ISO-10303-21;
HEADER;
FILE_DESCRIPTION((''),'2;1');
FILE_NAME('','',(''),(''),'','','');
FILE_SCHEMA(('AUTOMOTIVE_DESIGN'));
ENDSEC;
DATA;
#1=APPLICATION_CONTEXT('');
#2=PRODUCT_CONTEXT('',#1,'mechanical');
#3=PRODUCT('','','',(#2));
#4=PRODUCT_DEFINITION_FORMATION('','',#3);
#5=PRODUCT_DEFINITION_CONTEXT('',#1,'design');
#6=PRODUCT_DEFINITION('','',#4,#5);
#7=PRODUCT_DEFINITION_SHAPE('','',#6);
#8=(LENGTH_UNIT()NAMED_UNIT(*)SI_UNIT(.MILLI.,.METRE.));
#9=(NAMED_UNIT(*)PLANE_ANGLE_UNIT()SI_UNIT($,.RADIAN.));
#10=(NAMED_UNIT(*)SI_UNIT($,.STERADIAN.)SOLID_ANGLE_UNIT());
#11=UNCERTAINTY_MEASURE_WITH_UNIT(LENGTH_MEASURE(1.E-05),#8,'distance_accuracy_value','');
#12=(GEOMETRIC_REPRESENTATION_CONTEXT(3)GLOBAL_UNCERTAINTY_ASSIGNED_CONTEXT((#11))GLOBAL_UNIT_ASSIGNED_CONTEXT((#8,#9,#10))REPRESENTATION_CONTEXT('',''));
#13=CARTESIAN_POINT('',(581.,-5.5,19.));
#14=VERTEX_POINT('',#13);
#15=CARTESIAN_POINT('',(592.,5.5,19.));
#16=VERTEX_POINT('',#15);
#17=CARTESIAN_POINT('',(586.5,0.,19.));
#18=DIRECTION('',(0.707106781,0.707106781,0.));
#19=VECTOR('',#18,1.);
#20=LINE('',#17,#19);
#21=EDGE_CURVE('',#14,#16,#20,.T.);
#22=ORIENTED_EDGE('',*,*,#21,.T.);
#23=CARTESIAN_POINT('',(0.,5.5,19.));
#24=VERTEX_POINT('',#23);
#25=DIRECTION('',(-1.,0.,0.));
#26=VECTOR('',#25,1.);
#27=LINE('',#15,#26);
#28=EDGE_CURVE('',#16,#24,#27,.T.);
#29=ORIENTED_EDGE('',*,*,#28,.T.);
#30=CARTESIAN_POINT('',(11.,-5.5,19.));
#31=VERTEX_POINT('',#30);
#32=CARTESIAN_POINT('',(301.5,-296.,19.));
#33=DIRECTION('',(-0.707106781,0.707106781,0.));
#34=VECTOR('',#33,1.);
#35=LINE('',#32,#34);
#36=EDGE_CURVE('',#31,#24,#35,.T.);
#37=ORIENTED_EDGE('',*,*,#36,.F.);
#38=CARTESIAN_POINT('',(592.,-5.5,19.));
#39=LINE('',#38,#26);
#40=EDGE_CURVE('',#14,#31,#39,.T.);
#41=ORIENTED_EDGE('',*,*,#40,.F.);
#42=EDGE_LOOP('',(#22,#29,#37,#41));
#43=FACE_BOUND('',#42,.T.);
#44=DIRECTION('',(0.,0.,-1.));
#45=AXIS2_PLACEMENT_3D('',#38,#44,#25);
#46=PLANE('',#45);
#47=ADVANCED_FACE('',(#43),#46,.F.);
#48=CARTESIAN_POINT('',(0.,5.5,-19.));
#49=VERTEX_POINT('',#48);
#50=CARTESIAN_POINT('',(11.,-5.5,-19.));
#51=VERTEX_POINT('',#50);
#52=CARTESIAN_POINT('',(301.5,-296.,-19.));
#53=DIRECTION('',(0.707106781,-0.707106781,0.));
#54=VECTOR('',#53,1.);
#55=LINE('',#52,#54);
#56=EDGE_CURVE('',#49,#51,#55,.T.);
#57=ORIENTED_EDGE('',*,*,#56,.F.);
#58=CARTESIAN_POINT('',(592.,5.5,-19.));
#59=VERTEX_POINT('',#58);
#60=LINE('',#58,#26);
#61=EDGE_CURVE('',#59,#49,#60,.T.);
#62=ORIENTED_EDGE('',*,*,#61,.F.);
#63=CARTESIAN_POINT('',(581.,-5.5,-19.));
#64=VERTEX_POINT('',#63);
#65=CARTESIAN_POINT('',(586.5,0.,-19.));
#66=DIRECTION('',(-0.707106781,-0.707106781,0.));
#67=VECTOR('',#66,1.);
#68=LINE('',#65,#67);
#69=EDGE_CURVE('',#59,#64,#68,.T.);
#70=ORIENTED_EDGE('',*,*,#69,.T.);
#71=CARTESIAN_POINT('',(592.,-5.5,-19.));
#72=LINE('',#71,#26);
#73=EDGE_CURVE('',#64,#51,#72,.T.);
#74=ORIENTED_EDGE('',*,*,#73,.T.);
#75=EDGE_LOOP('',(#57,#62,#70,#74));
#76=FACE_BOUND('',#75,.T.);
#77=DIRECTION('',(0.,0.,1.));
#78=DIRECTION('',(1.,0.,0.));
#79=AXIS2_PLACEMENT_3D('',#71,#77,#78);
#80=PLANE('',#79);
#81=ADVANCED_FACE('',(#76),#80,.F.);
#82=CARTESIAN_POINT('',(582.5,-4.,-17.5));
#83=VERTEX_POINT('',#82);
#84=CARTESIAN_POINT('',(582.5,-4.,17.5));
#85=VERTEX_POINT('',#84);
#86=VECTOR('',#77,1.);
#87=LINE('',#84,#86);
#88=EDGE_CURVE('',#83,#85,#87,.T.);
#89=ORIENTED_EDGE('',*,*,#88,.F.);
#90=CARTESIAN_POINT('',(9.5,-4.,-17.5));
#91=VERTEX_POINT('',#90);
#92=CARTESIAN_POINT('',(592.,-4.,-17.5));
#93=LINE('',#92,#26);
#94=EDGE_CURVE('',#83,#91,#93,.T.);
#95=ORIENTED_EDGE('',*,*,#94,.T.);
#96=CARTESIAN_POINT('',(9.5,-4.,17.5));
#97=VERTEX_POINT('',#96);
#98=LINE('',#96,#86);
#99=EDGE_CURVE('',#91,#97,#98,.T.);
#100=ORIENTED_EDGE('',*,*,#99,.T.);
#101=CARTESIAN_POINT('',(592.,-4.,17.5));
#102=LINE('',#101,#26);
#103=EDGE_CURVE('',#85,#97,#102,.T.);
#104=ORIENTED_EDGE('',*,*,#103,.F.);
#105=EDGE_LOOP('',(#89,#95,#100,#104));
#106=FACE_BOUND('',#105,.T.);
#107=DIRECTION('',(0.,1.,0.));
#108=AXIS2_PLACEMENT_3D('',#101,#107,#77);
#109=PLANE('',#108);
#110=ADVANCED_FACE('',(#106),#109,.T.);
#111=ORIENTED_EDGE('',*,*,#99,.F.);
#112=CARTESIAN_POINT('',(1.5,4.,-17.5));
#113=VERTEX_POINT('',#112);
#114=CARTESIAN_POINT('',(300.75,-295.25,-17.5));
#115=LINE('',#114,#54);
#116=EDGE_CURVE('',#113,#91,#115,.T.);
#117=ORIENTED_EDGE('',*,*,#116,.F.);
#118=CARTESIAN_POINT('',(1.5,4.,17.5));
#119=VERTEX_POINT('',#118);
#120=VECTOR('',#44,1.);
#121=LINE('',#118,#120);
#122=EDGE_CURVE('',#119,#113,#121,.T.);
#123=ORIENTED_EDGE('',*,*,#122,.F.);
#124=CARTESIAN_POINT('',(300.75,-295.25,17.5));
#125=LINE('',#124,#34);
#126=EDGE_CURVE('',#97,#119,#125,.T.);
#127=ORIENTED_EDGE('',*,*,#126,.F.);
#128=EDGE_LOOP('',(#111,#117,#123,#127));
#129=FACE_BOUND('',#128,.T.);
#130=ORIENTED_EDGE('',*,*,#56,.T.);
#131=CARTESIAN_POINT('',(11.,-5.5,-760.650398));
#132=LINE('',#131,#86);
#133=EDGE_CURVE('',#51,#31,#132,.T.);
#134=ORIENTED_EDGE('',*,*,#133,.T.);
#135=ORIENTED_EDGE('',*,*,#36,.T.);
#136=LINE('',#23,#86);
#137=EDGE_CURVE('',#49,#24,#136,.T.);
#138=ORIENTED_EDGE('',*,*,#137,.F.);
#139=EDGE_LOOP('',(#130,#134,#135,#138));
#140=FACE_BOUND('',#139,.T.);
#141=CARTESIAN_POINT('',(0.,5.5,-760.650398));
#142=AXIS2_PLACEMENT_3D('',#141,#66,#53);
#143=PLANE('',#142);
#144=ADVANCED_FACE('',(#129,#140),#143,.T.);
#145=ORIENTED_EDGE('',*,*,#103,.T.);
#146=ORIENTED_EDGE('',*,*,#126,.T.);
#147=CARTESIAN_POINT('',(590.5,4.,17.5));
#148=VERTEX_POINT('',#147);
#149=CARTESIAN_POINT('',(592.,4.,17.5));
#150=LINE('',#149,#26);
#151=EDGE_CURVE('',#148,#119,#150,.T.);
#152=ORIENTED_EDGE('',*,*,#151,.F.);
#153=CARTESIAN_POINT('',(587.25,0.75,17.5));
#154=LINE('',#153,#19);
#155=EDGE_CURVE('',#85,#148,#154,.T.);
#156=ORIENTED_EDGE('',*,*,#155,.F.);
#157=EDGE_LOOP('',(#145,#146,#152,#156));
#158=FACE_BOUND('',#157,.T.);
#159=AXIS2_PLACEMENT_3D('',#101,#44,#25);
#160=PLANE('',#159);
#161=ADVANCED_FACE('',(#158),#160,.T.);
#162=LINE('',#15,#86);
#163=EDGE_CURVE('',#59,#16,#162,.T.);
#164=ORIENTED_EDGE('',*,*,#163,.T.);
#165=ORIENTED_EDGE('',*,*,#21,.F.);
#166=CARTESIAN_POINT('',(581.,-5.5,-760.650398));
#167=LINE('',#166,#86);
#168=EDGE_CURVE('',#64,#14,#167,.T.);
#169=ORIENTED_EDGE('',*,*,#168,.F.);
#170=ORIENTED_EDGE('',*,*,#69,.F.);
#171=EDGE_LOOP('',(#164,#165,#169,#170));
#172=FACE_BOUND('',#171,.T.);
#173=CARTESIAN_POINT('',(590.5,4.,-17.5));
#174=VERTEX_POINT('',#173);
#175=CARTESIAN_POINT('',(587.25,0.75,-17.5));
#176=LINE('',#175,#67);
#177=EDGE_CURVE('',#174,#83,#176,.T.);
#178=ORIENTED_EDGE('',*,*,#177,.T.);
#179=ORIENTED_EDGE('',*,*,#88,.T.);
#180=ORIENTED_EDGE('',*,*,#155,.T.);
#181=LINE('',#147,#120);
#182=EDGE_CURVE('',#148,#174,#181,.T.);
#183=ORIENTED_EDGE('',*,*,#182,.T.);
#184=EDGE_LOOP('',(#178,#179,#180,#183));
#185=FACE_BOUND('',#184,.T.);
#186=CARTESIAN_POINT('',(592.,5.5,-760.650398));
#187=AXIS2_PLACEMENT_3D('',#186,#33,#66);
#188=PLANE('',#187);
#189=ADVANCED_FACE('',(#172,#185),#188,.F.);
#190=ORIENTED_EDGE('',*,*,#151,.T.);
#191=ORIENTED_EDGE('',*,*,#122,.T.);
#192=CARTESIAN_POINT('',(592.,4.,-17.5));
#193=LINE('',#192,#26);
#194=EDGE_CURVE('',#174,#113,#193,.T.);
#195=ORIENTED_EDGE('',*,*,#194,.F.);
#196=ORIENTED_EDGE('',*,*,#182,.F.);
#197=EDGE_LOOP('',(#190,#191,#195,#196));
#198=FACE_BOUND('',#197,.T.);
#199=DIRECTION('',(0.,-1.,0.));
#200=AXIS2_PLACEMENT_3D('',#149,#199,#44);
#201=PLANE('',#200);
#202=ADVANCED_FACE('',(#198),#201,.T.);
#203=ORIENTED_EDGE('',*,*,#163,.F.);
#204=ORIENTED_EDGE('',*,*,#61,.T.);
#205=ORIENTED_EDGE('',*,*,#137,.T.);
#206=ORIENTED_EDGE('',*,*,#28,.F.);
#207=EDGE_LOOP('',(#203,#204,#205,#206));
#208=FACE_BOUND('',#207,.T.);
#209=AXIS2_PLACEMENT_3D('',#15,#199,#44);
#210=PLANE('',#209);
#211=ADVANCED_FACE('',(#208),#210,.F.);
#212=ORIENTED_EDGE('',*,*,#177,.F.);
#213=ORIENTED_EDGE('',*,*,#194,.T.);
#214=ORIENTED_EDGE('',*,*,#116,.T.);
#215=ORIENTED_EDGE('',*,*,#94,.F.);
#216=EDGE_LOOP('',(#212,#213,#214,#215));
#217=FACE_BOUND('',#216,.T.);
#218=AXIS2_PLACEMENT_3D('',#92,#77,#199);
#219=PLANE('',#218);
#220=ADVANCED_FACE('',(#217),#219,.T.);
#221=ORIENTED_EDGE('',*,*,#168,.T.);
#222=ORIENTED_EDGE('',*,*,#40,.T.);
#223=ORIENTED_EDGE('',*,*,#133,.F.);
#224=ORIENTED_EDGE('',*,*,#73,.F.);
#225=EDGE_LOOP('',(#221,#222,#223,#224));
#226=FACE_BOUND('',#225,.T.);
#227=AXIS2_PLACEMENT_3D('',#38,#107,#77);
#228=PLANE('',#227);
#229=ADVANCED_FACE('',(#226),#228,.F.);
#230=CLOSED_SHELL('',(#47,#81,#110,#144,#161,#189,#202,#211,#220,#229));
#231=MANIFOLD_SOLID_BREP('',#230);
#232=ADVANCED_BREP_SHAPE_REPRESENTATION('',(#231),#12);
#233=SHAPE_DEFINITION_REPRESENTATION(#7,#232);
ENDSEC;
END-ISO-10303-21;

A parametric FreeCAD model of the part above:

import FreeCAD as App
import Part
import Sketcher

V = App.Vector
Q = App.Units.Quantity


def add_polygon(sketch, points):
    """Adds a closed chain of lines whose ends are joined by coincident constraints."""
    first, n = sketch.GeometryCount, len(points)
    for a, b in zip(points, points[1:] + points[:1]):
        sketch.addGeometry(Part.LineSegment(App.Vector(*a, 0), App.Vector(*b, 0)), False)
    for i in range(n):
        sketch.addConstraint(Sketcher.Constraint("Coincident", first + i, 2, first + (i + 1) % n, 1))

doc = App.newDocument("Part")
params = doc.addObject("Spreadsheet::Sheet", "Params")
for row, (alias, value) in enumerate([
    ("sketch1_width", "11 mm"),
    ("sketch1_width2", "8 mm"),
    ("sketch1_height", "38 mm"),
    ("sketch1_height2", "35 mm"),
    ("pad1_length", "592 mm"),
], start=1):
    params.set(f"A{row}", alias)
    params.set(f"B{row}", "=" + value)
    params.setAlias(f"B{row}", alias)

body = doc.addObject("PartDesign::Body", "Body")

sketch1 = body.newObject("Sketcher::SketchObject", "Sketch")
sketch1.AttachmentSupport = (doc.getObject("YZ_Plane"), [""])
sketch1.MapMode = "FlatFace"
add_polygon(sketch1, [(6, 19), (-6, 19), (-6, -19), (6, -19)])
add_polygon(sketch1, [(-4, -18), (-4, 18), (4, 18), (4, -18)])
sketch1.addConstraint(Sketcher.Constraint("Horizontal", 0))
sketch1.addConstraint(Sketcher.Constraint("Vertical", 1))
sketch1.addConstraint(Sketcher.Constraint("Horizontal", 2))
sketch1.addConstraint(Sketcher.Constraint("Vertical", 3))
sketch1.addConstraint(Sketcher.Constraint("Vertical", 4))
sketch1.addConstraint(Sketcher.Constraint("Horizontal", 5))
sketch1.addConstraint(Sketcher.Constraint("Vertical", 6))
sketch1.addConstraint(Sketcher.Constraint("Horizontal", 7))
sketch1.addConstraint(Sketcher.Constraint("Symmetric", 0, 2, 2, 2, -1, 1))
sketch1.addConstraint(Sketcher.Constraint("Symmetric", 4, 2, 6, 2, -1, 1))
sketch1.addConstraint(Sketcher.Constraint("DistanceX", 0, 2, 0, 1, Q("11 mm")))
sketch1.addConstraint(Sketcher.Constraint("DistanceX", 5, 1, 5, 2, Q("8 mm")))
sketch1.addConstraint(Sketcher.Constraint("DistanceY", 1, 2, 1, 1, Q("38 mm")))
sketch1.addConstraint(Sketcher.Constraint("DistanceY", 4, 1, 4, 2, Q("35 mm")))
sketch1.setExpression("Constraints[18]", "Params.sketch1_width")
sketch1.setExpression("Constraints[19]", "Params.sketch1_width2")
sketch1.setExpression("Constraints[20]", "Params.sketch1_height")
sketch1.setExpression("Constraints[21]", "Params.sketch1_height2")
pad1 = body.newObject("PartDesign::Pad", "Pad")
pad1.Profile = sketch1
pad1.setExpression("Length", "Params.pad1_length")

sketch2 = body.newObject("Sketcher::SketchObject", "Sketch001")
sketch2.AttachmentSupport = (doc.getObject("XY_Plane"), [""])
sketch2.MapMode = "FlatFace"
sketch2.AttachmentOffset = App.Placement(V(0, 0, -19), App.Rotation())
add_polygon(sketch2, [(-844, 850), (855, -850), (-833, -2539), (-2533, -839)])
sketch2.addConstraint(Sketcher.Constraint("Perpendicular", 0, 1))
sketch2.addConstraint(Sketcher.Constraint("Perpendicular", 1, 2))
sketch2.addConstraint(Sketcher.Constraint("Perpendicular", 2, 3))
sketch2.addConstraint(Sketcher.Constraint("Angle", 0, Q("-45 deg")))
sketch2.addConstraint(Sketcher.Constraint("DistanceY", 0, 2, 2, 2, Q("11 mm")))
sketch2.addConstraint(Sketcher.Constraint("Distance", 1, Q("2388.408749 mm")))
sketch2.addConstraint(Sketcher.Constraint("DistanceX", -1, 1, 0, 2, Q("855.430011 mm")))
sketch2.addConstraint(Sketcher.Constraint("DistanceY", 0, 2, -1, 1, Q("849.930011 mm")))
pocket1 = body.newObject("PartDesign::Pocket", "Pocket")
pocket1.Profile = sketch2
pocket1.Type = "ThroughAll"
pocket1.Midplane = True

sketch3 = body.newObject("Sketcher::SketchObject", "Sketch002")
sketch3.AttachmentSupport = (doc.getObject("XY_Plane"), [""])
sketch3.MapMode = "FlatFace"
sketch3.AttachmentOffset = App.Placement(V(0, 0, -19), App.Rotation())
add_polygon(sketch3, [(-263, -850), (1436, 850), (3125, -839), (1425, -2539)])
sketch3.addConstraint(Sketcher.Constraint("Perpendicular", 0, 1))
sketch3.addConstraint(Sketcher.Constraint("Perpendicular", 1, 2))
sketch3.addConstraint(Sketcher.Constraint("Perpendicular", 2, 3))
sketch3.addConstraint(Sketcher.Constraint("Angle", 0, Q("45 deg")))
sketch3.addConstraint(Sketcher.Constraint("DistanceX", 2, 2, 0, 2, Q("11 mm")))
sketch3.addConstraint(Sketcher.Constraint("Distance", 1, Q("2388.408749 mm")))
sketch3.addConstraint(Sketcher.Constraint("DistanceX", -1, 1, 0, 2, Q("1436.430011 mm")))
sketch3.addConstraint(Sketcher.Constraint("DistanceY", -1, 1, 0, 2, Q("849.930011 mm")))
pocket2 = body.newObject("PartDesign::Pocket", "Pocket001")
pocket2.Profile = sketch3
pocket2.Type = "ThroughAll"
pocket2.Midplane = True

doc.recompute()
